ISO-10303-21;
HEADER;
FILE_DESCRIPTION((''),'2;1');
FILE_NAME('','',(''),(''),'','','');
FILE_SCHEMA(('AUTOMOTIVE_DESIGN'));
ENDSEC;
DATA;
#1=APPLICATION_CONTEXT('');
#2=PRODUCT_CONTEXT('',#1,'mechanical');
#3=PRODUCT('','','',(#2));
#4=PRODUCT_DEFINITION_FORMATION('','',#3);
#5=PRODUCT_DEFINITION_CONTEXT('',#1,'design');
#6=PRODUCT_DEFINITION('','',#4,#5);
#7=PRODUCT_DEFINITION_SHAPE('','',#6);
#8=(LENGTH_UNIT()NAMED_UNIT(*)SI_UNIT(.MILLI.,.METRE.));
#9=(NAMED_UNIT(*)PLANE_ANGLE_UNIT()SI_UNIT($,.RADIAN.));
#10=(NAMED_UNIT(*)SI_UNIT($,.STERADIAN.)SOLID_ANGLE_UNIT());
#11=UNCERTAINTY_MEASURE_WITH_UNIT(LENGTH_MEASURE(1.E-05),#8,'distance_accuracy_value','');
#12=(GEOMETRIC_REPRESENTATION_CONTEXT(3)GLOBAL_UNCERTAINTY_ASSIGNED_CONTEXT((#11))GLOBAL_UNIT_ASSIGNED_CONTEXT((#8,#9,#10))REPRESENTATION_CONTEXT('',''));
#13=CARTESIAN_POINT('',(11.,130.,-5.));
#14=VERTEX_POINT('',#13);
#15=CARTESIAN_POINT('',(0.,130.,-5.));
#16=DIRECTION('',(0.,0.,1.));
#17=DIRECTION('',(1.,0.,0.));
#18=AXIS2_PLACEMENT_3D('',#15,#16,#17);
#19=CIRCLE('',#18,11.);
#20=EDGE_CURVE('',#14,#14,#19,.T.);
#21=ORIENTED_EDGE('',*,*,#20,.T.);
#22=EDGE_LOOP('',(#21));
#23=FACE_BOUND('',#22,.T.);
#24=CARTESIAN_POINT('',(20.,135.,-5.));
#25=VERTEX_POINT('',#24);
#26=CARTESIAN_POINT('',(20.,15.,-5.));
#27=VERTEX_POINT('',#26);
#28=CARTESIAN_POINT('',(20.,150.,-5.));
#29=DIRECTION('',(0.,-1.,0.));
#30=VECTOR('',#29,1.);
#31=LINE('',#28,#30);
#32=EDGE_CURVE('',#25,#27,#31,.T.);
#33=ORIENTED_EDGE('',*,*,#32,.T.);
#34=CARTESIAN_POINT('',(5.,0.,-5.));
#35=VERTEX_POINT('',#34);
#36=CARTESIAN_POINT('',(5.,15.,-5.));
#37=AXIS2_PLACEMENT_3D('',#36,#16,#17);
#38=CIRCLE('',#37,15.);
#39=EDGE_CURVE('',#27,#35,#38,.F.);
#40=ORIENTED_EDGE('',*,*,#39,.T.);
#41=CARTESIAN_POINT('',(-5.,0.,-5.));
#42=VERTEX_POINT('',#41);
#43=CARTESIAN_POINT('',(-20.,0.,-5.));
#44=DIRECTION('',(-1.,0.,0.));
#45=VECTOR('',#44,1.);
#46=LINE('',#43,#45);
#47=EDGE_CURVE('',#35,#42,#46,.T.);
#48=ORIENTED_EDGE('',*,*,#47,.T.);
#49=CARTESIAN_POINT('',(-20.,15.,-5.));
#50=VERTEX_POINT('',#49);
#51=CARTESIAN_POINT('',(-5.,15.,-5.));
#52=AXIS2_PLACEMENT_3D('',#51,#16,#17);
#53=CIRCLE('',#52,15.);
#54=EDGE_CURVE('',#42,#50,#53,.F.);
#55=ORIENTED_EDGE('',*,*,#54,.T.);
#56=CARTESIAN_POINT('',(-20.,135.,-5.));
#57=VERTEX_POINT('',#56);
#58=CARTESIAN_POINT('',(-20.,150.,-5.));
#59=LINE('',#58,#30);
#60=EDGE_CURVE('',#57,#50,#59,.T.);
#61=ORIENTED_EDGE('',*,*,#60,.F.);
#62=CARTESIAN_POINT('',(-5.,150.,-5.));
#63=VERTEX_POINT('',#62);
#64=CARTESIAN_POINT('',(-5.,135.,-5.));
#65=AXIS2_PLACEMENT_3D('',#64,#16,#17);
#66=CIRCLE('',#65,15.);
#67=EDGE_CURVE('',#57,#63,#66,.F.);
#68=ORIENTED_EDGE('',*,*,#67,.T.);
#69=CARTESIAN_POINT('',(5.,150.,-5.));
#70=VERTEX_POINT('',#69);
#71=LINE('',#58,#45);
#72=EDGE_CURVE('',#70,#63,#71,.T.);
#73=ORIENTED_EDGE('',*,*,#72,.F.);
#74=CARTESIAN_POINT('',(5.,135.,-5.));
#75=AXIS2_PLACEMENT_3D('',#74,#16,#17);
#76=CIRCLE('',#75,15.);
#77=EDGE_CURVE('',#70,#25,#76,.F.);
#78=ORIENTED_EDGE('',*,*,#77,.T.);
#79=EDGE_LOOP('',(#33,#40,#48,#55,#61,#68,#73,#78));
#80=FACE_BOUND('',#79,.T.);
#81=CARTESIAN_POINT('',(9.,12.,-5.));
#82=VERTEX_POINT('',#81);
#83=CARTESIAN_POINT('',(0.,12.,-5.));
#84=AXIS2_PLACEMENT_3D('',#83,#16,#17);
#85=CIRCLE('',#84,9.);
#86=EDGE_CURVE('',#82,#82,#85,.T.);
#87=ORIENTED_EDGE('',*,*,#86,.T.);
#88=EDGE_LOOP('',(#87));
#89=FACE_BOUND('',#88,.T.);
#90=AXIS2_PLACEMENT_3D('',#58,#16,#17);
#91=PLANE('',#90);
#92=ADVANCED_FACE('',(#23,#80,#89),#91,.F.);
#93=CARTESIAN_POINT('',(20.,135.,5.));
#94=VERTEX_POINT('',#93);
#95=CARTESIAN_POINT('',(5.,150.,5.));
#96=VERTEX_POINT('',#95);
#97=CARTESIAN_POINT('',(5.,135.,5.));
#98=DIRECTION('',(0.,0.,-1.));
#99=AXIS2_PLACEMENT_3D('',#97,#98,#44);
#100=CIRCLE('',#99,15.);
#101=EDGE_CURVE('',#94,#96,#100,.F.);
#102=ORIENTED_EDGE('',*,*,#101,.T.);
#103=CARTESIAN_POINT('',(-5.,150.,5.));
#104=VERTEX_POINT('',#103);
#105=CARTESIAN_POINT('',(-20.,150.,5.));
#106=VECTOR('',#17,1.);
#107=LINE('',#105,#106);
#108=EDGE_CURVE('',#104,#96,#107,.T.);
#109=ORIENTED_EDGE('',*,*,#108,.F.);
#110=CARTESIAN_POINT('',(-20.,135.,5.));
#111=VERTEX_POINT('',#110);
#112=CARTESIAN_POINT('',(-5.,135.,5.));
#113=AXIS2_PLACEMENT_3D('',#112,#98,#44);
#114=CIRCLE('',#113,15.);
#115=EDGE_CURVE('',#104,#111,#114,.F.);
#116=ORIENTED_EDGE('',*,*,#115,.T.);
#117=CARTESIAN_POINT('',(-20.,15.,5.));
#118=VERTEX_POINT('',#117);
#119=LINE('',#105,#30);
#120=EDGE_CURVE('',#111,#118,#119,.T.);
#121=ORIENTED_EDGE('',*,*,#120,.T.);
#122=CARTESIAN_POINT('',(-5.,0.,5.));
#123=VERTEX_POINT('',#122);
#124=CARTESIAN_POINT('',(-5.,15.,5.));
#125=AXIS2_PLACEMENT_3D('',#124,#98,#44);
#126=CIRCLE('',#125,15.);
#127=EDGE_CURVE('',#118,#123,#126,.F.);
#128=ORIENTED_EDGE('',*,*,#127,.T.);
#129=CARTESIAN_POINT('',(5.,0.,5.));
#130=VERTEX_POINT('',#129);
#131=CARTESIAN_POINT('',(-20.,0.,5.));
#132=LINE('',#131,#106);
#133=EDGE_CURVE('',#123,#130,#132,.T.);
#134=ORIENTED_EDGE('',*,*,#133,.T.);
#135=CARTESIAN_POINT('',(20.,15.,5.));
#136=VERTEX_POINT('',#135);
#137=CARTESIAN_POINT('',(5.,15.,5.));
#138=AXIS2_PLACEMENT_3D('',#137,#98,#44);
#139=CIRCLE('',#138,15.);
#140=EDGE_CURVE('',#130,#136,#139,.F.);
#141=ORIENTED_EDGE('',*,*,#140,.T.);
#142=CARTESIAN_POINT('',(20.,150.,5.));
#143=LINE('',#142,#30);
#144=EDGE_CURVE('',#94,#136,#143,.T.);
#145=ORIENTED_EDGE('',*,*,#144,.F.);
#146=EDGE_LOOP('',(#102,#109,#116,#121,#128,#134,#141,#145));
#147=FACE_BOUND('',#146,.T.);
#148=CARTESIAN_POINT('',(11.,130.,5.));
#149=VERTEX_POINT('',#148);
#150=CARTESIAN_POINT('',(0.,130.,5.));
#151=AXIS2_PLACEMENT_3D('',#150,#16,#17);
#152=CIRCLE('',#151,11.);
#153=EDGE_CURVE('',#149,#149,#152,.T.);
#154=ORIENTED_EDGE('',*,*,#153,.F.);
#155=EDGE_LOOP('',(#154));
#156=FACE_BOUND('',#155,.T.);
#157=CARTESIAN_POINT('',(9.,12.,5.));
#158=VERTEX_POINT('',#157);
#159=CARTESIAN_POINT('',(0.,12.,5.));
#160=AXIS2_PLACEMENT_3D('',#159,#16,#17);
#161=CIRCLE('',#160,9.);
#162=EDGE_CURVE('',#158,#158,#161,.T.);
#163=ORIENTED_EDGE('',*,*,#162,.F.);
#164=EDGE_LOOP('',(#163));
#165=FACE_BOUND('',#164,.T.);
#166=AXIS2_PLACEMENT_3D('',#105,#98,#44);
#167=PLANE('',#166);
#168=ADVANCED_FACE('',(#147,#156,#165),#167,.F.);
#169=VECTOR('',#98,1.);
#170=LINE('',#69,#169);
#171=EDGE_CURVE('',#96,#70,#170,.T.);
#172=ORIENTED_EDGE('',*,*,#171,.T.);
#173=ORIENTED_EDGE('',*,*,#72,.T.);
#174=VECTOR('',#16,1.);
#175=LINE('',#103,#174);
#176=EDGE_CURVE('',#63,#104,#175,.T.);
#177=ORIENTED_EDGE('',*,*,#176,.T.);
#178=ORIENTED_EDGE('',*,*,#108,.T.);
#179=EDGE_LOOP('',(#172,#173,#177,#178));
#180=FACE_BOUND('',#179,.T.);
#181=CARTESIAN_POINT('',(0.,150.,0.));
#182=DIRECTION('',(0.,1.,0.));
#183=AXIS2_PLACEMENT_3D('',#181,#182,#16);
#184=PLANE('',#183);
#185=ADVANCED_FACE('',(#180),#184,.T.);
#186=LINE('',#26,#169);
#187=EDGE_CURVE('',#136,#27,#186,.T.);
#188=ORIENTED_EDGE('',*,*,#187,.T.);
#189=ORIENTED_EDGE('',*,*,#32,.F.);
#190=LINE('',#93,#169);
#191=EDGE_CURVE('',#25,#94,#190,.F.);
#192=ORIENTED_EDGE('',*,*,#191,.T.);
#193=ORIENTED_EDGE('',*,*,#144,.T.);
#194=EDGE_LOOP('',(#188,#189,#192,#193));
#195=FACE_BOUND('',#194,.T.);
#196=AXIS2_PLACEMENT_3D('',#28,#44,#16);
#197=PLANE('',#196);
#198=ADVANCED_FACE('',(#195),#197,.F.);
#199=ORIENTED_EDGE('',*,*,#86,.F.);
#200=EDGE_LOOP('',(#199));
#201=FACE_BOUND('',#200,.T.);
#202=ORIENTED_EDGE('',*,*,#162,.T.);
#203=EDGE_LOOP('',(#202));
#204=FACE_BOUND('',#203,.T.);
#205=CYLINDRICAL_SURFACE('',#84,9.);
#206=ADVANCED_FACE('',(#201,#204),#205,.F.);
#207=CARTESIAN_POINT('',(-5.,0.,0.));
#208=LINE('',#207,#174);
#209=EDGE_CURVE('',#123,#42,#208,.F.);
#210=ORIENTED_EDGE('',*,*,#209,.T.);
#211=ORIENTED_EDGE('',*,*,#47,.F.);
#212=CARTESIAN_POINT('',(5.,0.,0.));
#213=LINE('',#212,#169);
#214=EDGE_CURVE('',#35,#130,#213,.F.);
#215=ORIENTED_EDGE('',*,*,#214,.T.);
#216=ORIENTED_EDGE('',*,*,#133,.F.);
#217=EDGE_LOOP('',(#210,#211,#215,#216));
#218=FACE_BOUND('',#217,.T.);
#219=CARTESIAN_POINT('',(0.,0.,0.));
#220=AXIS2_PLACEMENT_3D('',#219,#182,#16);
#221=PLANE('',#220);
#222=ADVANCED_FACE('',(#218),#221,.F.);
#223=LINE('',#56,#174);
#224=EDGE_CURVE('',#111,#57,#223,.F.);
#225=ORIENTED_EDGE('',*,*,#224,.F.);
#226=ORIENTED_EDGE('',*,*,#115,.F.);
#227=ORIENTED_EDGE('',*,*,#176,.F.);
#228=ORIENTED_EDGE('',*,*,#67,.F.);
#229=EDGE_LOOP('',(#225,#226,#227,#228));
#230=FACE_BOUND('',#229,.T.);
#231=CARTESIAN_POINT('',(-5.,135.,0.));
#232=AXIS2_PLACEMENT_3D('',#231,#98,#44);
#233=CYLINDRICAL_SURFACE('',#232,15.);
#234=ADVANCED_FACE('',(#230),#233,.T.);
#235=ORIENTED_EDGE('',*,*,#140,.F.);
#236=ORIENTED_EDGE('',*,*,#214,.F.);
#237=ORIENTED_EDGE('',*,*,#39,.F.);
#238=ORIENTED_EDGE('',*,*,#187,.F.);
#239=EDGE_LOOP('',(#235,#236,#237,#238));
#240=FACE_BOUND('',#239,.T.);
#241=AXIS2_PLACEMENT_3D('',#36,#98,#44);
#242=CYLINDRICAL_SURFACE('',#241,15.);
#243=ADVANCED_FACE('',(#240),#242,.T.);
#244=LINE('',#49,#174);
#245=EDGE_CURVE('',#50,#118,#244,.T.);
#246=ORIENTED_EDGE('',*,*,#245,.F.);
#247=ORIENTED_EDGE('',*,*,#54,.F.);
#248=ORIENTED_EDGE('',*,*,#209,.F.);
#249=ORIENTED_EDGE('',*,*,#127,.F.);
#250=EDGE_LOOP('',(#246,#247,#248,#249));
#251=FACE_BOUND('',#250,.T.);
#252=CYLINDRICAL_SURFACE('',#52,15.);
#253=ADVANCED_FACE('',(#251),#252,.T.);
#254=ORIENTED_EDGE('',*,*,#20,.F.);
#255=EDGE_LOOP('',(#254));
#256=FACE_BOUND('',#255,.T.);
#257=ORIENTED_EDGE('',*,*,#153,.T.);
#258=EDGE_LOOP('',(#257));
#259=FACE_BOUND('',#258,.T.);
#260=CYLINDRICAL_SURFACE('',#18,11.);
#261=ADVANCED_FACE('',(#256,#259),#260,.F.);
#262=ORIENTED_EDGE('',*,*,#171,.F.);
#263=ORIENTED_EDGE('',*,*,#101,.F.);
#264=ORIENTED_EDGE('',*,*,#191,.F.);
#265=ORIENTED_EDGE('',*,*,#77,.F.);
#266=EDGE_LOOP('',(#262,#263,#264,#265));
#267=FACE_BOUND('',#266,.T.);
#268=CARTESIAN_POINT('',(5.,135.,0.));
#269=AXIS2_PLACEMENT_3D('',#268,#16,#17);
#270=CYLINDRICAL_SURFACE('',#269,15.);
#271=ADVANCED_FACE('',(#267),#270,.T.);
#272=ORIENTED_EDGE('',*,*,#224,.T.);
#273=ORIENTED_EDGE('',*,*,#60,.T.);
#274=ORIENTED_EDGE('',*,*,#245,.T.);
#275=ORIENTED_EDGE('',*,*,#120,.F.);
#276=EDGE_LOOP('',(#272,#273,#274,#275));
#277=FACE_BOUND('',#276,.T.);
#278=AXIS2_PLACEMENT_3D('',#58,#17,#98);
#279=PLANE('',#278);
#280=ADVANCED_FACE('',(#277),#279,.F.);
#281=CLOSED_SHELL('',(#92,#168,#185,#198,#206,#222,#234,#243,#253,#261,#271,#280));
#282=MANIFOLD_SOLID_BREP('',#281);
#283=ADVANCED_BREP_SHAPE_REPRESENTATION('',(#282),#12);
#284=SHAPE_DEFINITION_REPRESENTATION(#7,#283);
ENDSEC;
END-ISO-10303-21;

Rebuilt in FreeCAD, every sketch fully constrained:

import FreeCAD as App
import Part
import Sketcher
from FreeCAD import Vector
Q = App.Units.Quantity


def edges_at(feature, points):
    """Names of the edges that pass closest to the given points."""
    edges = feature.Shape.Edges
    near = lambda p: min(range(len(edges)), key=lambda i: edges[i].distToShape(Part.Vertex(*p))[0])
    return sorted({f"Edge{near(p) + 1}" for p in points})

doc = App.newDocument("Part")
body = doc.addObject("PartDesign::Body", "Body")

# Sketch on XZ plane
sketch1 = body.newObject("Sketcher::SketchObject", "Sketch")
sketch1.AttachmentSupport = (doc.getObject("XZ_Plane"), [""])
sketch1.MapMode = "FlatFace"
sketch1.addGeometry([
    Part.LineSegment(Vector(-20, -5, 0), Vector(-20, 5, 0)),
    Part.LineSegment(Vector(-20, 5, 0), Vector(20, 5, 0)),
    Part.LineSegment(Vector(20, 5, 0), Vector(20, -5, 0)),
    Part.LineSegment(Vector(20, -5, 0), Vector(-20, -5, 0)),
], False)
sketch1.addConstraint([
    Sketcher.Constraint("Coincident", 0, 2, 1, 1),
    Sketcher.Constraint("Coincident", 1, 2, 2, 1),
    Sketcher.Constraint("Coincident", 2, 2, 3, 1),
    Sketcher.Constraint("Coincident", 3, 2, 0, 1),
    Sketcher.Constraint("Vertical", 0),
    Sketcher.Constraint("Horizontal", 1),
    Sketcher.Constraint("Vertical", 2),
    Sketcher.Constraint("Horizontal", 3),
    Sketcher.Constraint("Symmetric", 0, 2, 2, 2, -1, 1),
    Sketcher.Constraint("DistanceX", 1, 1, 1, 2, Q("40 mm")),
    Sketcher.Constraint("DistanceY", 0, 1, 0, 2, Q("10 mm")),
])
pad1 = body.newObject("PartDesign::Pad", "Pad")
pad1.Profile = sketch1
pad1.Length = 150
pad1.Reversed = True

# Sketch on XY plane
sketch2 = body.newObject("Sketcher::SketchObject", "Sketch001")
sketch2.AttachmentSupport = (doc.getObject("XY_Plane"), [""])
sketch2.MapMode = "FlatFace"
sketch2.AttachmentOffset = App.Placement(Vector(0, 0, 5), App.Rotation())
sketch2.addGeometry(Part.Circle(Vector(0, 130, 0), Vector(0, 0, 1), 11), False)
sketch2.addConstraint([
    Sketcher.Constraint("PointOnObject", 0, 3, -2),
    Sketcher.Constraint("Diameter", 0, Q("22 mm")),
    Sketcher.Constraint("DistanceY", -1, 1, 0, 3, Q("130 mm")),
])
pocket1 = body.newObject("PartDesign::Pocket", "Pocket")
pocket1.Profile = sketch2
pocket1.Type = "ThroughAll"

# Sketch on XY plane
sketch3 = body.newObject("Sketcher::SketchObject", "Sketch002")
sketch3.AttachmentSupport = (doc.getObject("XY_Plane"), [""])
sketch3.MapMode = "FlatFace"
sketch3.AttachmentOffset = App.Placement(Vector(0, 0, 5), App.Rotation())
sketch3.addGeometry(Part.Circle(Vector(0, 12, 0), Vector(0, 0, 1), 9), False)
sketch3.addConstraint([
    Sketcher.Constraint("PointOnObject", 0, 3, -2),
    Sketcher.Constraint("Diameter", 0, Q("18 mm")),
    Sketcher.Constraint("DistanceY", -1, 1, 0, 3, Q("12 mm")),
])
pocket2 = body.newObject("PartDesign::Pocket", "Pocket001")
pocket2.Profile = sketch3
pocket2.Type = "ThroughAll"
doc.recompute()

fillet = body.newObject("PartDesign::Fillet", "Fillet")
fillet.Base = (pocket2, edges_at(pocket2, [
    (-20, 150, 0),
    (20, 150, 0),
    (-20, 0, 0),
    (20, 0, 0),
]))
fillet.Radius = 15

doc.recompute()
